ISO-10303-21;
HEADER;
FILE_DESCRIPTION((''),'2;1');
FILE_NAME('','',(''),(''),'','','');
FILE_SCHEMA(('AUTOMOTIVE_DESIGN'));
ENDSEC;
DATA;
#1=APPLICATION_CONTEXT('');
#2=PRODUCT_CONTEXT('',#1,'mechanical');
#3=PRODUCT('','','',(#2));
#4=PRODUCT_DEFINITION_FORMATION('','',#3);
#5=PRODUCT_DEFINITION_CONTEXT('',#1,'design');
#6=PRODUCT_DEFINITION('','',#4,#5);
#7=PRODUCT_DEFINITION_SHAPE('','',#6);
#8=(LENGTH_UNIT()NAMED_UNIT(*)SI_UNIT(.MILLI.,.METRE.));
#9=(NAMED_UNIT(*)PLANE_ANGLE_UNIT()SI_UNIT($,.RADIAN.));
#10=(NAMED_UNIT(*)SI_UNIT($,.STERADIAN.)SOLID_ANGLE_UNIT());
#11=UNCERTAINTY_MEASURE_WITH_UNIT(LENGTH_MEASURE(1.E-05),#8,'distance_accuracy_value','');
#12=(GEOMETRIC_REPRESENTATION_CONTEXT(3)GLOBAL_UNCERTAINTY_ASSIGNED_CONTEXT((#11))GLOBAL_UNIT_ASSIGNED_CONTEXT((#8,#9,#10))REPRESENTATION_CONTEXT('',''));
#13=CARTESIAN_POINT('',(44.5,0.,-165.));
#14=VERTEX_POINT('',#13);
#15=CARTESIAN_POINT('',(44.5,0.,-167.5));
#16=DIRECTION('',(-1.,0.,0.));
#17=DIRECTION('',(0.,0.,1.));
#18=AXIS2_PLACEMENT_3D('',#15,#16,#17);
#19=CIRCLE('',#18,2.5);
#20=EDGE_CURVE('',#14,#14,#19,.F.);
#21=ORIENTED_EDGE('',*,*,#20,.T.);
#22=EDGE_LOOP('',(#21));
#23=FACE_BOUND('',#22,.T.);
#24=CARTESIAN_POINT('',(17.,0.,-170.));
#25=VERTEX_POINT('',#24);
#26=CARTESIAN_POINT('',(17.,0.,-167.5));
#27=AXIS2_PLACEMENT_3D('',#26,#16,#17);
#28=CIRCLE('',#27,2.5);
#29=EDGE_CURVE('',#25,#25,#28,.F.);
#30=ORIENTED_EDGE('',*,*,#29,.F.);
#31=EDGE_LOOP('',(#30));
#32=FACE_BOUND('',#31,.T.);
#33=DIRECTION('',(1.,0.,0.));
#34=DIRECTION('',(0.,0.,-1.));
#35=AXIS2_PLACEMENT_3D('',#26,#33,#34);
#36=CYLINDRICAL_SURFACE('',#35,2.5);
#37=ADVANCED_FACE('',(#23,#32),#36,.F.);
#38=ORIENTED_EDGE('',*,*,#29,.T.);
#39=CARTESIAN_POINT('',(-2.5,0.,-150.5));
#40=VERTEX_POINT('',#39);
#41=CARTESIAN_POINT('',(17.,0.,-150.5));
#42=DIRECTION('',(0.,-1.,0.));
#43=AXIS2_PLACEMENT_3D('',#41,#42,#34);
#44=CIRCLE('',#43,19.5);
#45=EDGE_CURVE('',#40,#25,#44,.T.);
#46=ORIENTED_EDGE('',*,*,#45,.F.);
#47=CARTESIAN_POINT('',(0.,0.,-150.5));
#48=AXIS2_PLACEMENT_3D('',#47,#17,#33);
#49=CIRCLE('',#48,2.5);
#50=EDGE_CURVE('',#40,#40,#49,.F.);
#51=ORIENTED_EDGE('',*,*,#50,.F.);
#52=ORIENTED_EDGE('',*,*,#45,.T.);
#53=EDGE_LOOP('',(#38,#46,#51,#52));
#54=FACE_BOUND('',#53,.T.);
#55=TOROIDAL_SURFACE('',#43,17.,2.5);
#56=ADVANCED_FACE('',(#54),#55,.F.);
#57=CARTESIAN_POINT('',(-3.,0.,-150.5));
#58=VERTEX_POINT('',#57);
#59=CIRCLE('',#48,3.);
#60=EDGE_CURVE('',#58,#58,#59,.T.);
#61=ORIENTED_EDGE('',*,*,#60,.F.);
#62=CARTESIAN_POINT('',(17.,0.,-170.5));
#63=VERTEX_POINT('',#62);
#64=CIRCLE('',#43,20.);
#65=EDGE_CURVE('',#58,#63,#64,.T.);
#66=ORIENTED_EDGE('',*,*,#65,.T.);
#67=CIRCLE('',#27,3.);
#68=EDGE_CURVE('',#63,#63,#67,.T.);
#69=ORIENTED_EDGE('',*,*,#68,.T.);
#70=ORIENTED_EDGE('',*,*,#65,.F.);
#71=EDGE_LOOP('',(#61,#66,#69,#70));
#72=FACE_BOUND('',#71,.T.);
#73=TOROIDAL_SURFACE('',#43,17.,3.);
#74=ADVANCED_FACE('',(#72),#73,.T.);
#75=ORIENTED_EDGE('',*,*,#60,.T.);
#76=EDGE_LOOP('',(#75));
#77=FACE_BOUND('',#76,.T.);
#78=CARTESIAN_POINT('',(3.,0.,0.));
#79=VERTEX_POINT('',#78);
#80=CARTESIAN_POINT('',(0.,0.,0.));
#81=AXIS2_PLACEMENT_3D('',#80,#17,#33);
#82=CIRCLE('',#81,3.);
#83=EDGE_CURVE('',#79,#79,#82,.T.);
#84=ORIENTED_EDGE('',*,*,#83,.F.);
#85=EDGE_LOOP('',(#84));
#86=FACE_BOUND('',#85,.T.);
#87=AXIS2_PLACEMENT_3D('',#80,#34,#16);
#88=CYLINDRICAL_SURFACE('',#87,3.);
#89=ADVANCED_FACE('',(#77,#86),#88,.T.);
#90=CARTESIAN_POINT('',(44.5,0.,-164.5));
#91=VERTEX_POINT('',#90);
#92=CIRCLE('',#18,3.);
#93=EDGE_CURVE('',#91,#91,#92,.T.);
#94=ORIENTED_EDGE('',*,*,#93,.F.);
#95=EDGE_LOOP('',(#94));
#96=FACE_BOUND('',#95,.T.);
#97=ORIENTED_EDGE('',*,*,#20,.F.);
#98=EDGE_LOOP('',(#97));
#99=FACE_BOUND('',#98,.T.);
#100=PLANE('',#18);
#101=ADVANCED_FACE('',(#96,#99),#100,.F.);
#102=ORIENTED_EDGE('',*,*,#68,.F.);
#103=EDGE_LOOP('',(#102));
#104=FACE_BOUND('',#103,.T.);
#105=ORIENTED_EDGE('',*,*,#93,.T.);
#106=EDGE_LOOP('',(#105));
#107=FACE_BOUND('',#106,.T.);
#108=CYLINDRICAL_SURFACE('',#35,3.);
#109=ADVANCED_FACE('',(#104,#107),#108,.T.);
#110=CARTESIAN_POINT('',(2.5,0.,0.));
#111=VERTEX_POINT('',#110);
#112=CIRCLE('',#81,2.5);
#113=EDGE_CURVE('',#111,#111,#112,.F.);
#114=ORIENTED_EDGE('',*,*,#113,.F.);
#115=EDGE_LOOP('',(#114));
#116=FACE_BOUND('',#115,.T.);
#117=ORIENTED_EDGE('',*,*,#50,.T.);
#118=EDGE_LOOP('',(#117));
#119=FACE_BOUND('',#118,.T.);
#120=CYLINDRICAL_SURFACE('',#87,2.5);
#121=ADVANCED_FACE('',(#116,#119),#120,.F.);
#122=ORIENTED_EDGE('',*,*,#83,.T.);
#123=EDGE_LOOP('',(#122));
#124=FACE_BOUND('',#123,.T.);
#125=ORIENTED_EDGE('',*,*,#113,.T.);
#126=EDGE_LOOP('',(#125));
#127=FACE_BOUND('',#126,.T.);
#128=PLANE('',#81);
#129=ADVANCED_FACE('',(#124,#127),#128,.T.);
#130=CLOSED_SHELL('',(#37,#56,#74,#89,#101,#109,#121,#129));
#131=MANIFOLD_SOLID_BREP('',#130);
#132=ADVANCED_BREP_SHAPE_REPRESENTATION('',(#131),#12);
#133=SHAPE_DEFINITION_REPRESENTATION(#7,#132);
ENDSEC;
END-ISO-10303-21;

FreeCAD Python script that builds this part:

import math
import FreeCAD as App
import Part
import Sketcher
from FreeCAD import Vector
Q = App.Units.Quantity

doc = App.newDocument("Part")
body = doc.addObject("PartDesign::Body", "Body")

# Sketch on XY plane
sketch1 = body.newObject("Sketcher::SketchObject", "Sketch")
sketch1.AttachmentSupport = (doc.getObject("XY_Plane"), [""])
sketch1.MapMode = "FlatFace"
sketch1.addGeometry(Part.Circle(Vector(0, 0, 0), Vector(0, 0, 1), 3), False)
sketch1.addGeometry(Part.Circle(Vector(0, 0, 0), Vector(0, 0, 1), 2.5), False)
sketch1.addConstraint(Sketcher.Constraint("Coincident", 0, 3, -1, 1))
sketch1.addConstraint(Sketcher.Constraint("Coincident", 1, 3, -1, 1))
sketch1.addConstraint(Sketcher.Constraint("Diameter", 0, Q("6 mm")))
sketch1.addConstraint(Sketcher.Constraint("Diameter", 1, Q("5 mm")))

# Sketch on XZ plane
sketch2 = body.newObject("Sketcher::SketchObject", "Sketch001")
sketch2.AttachmentSupport = (doc.getObject("XZ_Plane"), [""])
sketch2.MapMode = "FlatFace"
sketch2.addGeometry(Part.LineSegment(Vector(0, 0, 0), Vector(0, -150, 0)), False)
sketch2.addGeometry(Part.ArcOfCircle(Part.Circle(Vector(17, -150, 0), Vector(0, 0, 1), 17), math.radians(-180), math.radians(-90)), False)
sketch2.addGeometry(Part.LineSegment(Vector(17, -168, 0), Vector(44, -168, 0)), False)
sketch2.addConstraint(Sketcher.Constraint("Tangent", 0, 2, 1, 1))
sketch2.addConstraint(Sketcher.Constraint("Tangent", 1, 2, 2, 1))
sketch2.addConstraint(Sketcher.Constraint("Vertical", 0))
sketch2.addConstraint(Sketcher.Constraint("Horizontal", 2))
sketch2.addConstraint(Sketcher.Constraint("Coincident", 0, 1, -1, 1))
sketch2.addConstraint(Sketcher.Constraint("Radius", 1, Q("17 mm")))
sketch2.addConstraint(Sketcher.Constraint("DistanceX", 2, 1, 2, 2, Q("27.5 mm")))
sketch2.addConstraint(Sketcher.Constraint("DistanceY", 0, 2, 0, 1, Q("150.5 mm")))
doc.recompute()

additivepipe = body.newObject("PartDesign::AdditivePipe", "AdditivePipe")
additivepipe.Profile = sketch1
additivepipe.Spine = (sketch2, ["Edge1", "Edge2", "Edge3"])

doc.recompute()
